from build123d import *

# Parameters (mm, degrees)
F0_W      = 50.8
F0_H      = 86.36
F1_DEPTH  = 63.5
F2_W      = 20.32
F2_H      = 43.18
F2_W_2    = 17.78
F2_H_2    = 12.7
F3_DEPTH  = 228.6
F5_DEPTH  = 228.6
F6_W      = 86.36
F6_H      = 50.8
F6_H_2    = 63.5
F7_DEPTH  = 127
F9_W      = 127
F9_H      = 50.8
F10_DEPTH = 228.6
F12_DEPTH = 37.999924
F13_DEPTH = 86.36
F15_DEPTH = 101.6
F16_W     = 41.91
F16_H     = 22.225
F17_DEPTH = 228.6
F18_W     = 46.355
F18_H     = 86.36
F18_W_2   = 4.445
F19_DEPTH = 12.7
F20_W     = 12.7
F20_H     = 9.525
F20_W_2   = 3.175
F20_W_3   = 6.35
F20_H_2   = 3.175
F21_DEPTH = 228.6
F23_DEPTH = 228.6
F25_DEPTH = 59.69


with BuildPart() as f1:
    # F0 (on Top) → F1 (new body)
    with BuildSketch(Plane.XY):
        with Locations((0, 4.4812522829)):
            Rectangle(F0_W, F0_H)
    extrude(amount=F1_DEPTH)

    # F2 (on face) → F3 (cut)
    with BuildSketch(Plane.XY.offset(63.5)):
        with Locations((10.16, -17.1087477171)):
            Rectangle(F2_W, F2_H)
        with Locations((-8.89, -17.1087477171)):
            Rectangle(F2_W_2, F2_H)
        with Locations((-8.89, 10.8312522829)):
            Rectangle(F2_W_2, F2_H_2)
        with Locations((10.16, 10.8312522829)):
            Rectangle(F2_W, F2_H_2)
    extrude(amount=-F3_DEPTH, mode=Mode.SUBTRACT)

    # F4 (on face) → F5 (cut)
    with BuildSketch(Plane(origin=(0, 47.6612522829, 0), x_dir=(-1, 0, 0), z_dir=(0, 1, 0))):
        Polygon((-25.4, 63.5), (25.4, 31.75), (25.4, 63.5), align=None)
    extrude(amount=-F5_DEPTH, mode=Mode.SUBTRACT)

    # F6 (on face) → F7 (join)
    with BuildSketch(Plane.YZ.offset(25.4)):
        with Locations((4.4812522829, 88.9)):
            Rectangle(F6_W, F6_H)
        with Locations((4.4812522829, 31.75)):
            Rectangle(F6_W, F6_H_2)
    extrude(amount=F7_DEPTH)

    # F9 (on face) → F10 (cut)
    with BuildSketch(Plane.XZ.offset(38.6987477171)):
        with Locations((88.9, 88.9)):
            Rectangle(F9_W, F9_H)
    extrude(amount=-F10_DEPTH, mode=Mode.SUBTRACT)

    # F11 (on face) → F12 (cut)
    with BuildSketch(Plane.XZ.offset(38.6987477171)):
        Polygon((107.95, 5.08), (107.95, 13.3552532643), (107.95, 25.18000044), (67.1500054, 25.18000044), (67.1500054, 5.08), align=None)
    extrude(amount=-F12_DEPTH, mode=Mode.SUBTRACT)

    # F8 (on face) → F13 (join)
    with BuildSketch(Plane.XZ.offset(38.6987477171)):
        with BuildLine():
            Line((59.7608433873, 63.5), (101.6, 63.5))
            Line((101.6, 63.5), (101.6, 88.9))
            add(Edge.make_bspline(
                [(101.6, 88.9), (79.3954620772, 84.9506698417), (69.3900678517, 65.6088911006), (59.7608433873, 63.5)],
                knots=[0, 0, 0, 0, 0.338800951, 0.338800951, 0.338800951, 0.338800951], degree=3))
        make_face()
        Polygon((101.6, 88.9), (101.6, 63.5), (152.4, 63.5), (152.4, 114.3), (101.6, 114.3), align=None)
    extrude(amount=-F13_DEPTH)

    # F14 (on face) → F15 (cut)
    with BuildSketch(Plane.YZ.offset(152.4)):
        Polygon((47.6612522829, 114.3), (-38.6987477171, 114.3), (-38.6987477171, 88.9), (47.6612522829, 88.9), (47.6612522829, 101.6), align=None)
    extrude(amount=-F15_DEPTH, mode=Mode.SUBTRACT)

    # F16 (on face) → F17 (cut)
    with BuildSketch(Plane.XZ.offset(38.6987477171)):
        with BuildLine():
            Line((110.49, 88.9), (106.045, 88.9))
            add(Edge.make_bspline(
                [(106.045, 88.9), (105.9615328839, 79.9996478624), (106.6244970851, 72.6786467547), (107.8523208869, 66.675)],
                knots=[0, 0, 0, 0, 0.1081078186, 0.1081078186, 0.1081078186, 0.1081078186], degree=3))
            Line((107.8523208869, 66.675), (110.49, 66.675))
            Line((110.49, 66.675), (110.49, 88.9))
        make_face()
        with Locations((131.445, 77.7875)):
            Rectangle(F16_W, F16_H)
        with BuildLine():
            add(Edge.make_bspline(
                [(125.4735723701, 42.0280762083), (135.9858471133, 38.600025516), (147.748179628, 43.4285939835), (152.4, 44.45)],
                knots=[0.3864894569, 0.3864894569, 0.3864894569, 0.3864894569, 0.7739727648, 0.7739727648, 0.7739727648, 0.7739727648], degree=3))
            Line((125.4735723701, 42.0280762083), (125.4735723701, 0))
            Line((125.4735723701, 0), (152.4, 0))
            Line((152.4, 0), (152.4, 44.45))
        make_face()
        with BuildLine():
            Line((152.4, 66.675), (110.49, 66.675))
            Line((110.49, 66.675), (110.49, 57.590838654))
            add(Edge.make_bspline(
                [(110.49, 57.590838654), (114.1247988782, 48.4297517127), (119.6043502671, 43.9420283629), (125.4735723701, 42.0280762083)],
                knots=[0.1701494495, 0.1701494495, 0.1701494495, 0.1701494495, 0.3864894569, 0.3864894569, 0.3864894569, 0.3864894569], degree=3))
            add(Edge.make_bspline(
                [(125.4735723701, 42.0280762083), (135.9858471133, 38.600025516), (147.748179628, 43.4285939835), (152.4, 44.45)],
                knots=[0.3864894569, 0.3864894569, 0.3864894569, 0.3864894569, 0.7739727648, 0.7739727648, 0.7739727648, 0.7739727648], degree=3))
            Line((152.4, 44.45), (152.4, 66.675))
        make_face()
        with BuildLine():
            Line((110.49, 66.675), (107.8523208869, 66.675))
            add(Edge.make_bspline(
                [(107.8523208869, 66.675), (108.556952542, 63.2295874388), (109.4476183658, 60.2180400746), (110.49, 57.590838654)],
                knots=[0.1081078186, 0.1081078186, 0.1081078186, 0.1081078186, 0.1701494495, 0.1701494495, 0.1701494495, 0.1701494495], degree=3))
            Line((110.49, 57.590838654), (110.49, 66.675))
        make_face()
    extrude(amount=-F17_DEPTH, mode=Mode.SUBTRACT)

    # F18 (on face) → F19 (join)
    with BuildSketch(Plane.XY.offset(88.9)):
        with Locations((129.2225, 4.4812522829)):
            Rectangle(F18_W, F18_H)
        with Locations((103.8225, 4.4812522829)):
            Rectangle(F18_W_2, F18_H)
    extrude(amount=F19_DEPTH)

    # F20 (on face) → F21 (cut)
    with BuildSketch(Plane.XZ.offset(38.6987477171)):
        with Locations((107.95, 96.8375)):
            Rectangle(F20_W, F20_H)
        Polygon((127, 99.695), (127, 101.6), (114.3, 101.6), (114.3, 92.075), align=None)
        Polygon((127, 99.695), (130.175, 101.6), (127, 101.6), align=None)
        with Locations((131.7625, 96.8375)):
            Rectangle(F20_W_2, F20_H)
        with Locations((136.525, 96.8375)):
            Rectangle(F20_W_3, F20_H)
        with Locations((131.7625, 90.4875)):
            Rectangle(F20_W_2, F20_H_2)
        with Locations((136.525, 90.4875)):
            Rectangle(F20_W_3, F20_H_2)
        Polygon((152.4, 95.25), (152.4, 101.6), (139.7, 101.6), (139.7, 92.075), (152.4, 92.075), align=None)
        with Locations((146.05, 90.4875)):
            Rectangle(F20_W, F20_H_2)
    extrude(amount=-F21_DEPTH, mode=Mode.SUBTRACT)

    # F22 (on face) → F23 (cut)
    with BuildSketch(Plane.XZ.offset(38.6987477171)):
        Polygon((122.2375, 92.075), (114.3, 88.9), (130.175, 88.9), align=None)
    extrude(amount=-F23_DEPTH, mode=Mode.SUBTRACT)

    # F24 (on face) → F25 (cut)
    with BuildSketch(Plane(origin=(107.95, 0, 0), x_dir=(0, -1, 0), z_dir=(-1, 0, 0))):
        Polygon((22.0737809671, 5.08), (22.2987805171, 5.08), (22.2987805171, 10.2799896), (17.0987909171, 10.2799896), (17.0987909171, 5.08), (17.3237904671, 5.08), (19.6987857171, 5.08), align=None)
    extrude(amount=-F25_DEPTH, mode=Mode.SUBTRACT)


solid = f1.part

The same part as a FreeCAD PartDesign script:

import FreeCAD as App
import Part
import Sketcher
from FreeCAD import Vector
Q = App.Units.Quantity


def add_polygon(sketch, points):
    """Adds a closed chain of lines whose ends are joined by coincident constraints."""
    first, n = sketch.GeometryCount, len(points)
    for a, b in zip(points, points[1:] + points[:1]):
        sketch.addGeometry(Part.LineSegment(App.Vector(*a, 0), App.Vector(*b, 0)), False)
    for i in range(n):
        sketch.addConstraint(Sketcher.Constraint("Coincident", first + i, 2, first + (i + 1) % n, 1))

doc = App.newDocument("Part")
body = doc.addObject("PartDesign::Body", "Body")

# Sketch on XY plane
sketch1 = doc.addObject("Sketcher::SketchObject", "Sketch")
body.addObject(sketch1)
sketch1.AttachmentSupport = (doc.XY_Plane, [""])
sketch1.MapMode = "FlatFace"
add_polygon(sketch1, [(-25, 48), (-25, -39), (25, -39), (25, 48)])  # lines 0-3
sketch1.addConstraint(Sketcher.Constraint("Vertical", 0))
sketch1.addConstraint(Sketcher.Constraint("Horizontal", 1))
sketch1.addConstraint(Sketcher.Constraint("Vertical", 2))
sketch1.addConstraint(Sketcher.Constraint("Horizontal", 3))
sketch1.addConstraint(Sketcher.Constraint("DistanceX", 1, 1, 1, 2, Q("2 in")))
sketch1.addConstraint(Sketcher.Constraint("DistanceY", 0, 2, 0, 1, Q("3.4 in")))
sketch1.addConstraint(Sketcher.Constraint("DistanceX", 0, 2, -1, 1, Q("1 in")))
sketch1.addConstraint(Sketcher.Constraint("DistanceY", 0, 2, -1, 1, Q("38.698748 mm")))
pad1 = doc.addObject("PartDesign::Pad", "Pad")
body.addObject(pad1)
pad1.Profile = sketch1
pad1.Length = Q("2.5 in")

# Sketch on XY plane
sketch2 = doc.addObject("Sketcher::SketchObject", "Sketch001")
body.addObject(sketch2)
sketch2.AttachmentSupport = (doc.XY_Plane, [""])
sketch2.MapMode = "FlatFace"
sketch2.AttachmentOffset = App.Placement(Vector(0, 0, 2.5 * 25.4), App.Rotation())
add_polygon(sketch2, [(20, -39), (20, 17), (-18, 17), (-18, -39)])  # lines 0-3
sketch2.addConstraint(Sketcher.Constraint("Vertical", 0))
sketch2.addConstraint(Sketcher.Constraint("Horizontal", 1))
sketch2.addConstraint(Sketcher.Constraint("Vertical", 2))
sketch2.addConstraint(Sketcher.Constraint("Horizontal", 3))
sketch2.addConstraint(Sketcher.Constraint("DistanceX", 1, 2, 1, 1, Q("1.5 in")))
sketch2.addConstraint(Sketcher.Constraint("DistanceY", 0, 1, 0, 2, Q("2.2 in")))
sketch2.addConstraint(Sketcher.Constraint("DistanceX", -1, 1, 0, 2, Q("0.8 in")))
sketch2.addConstraint(Sketcher.Constraint("DistanceY", -1, 1, 0, 2, Q("17.181252 mm")))
pocket1 = doc.addObject("PartDesign::Pocket", "Pocket")
body.addObject(pocket1)
pocket1.Profile = sketch2
pocket1.Length = Q("9 in")

# Sketch on XZ plane
sketch3 = doc.addObject("Sketcher::SketchObject", "Sketch002")
body.addObject(sketch3)
sketch3.AttachmentSupport = (doc.XZ_Plane, [""])
sketch3.MapMode = "FlatFace"
sketch3.AttachmentOffset = App.Placement(Vector(0, 0, -47.661252), App.Rotation())
add_polygon(sketch3, [(25, 64), (-25, 32), (-25, 64)])  # lines 0-2
sketch3.addConstraint(Sketcher.Constraint("Vertical", 1))
sketch3.addConstraint(Sketcher.Constraint("Horizontal", 2))
sketch3.addConstraint(Sketcher.Constraint("DistanceX", 2, 1, 2, 2, Q("2 in")))
sketch3.addConstraint(Sketcher.Constraint("DistanceX", 0, 2, -1, 1, Q("1 in")))
sketch3.addConstraint(Sketcher.Constraint("DistanceY", 1, 1, 1, 2, Q("1.25 in")))
sketch3.addConstraint(Sketcher.Constraint("DistanceY", -1, 1, 1, 2, Q("2.5 in")))
pocket2 = doc.addObject("PartDesign::Pocket", "Pocket001")
body.addObject(pocket2)
pocket2.Profile = sketch3
pocket2.Length = Q("9 in")
pocket2.Reversed = True

# Sketch on YZ plane
sketch4 = doc.addObject("Sketcher::SketchObject", "Sketch003")
body.addObject(sketch4)
sketch4.AttachmentSupport = (doc.YZ_Plane, [""])
sketch4.MapMode = "FlatFace"
sketch4.AttachmentOffset = App.Placement(Vector(0, 0, 1 * 25.4), App.Rotation())
add_polygon(sketch4, [(-39, 114), (-39, 0), (48, 0), (48, 114)])  # lines 0-3
sketch4.addConstraint(Sketcher.Constraint("Vertical", 0))
sketch4.addConstraint(Sketcher.Constraint("Horizontal", 1))
sketch4.addConstraint(Sketcher.Constraint("Vertical", 2))
sketch4.addConstraint(Sketcher.Constraint("Horizontal", 3))
sketch4.addConstraint(Sketcher.Constraint("PointOnObject", 0, 2, -1))
sketch4.addConstraint(Sketcher.Constraint("DistanceX", 1, 1, 1, 2, Q("3.4 in")))
sketch4.addConstraint(Sketcher.Constraint("DistanceY", 0, 2, 0, 1, Q("4.5 in")))
sketch4.addConstraint(Sketcher.Constraint("DistanceX", 0, 2, -1, 1, Q("38.698748 mm")))
pad2 = doc.addObject("PartDesign::Pad", "Pad001")
body.addObject(pad2)
pad2.Profile = sketch4
pad2.Length = Q("5 in")

# Sketch on XZ plane
sketch5 = doc.addObject("Sketcher::SketchObject", "Sketch004")
body.addObject(sketch5)
sketch5.AttachmentSupport = (doc.XZ_Plane, [""])
sketch5.MapMode = "FlatFace"
sketch5.AttachmentOffset = App.Placement(Vector(0, 0, 38.698748), App.Rotation())
add_polygon(sketch5, [(25, 114), (25, 64), (152, 64), (152, 114)])  # lines 0-3
sketch5.addConstraint(Sketcher.Constraint("Vertical", 0))
sketch5.addConstraint(Sketcher.Constraint("Horizontal", 1))
sketch5.addConstraint(Sketcher.Constraint("Vertical", 2))
sketch5.addConstraint(Sketcher.Constraint("Horizontal", 3))
sketch5.addConstraint(Sketcher.Constraint("DistanceX", 1, 1, 1, 2, Q("5 in")))
sketch5.addConstraint(Sketcher.Constraint("DistanceY", 0, 2, 0, 1, Q("2 in")))
sketch5.addConstraint(Sketcher.Constraint("DistanceX", -1, 1, 0, 2, Q("1 in")))
sketch5.addConstraint(Sketcher.Constraint("DistanceY", -1, 1, 0, 2, Q("2.5 in")))
pocket3 = doc.addObject("PartDesign::Pocket", "Pocket002")
body.addObject(pocket3)
pocket3.Profile = sketch5
pocket3.Length = Q("9 in")

# Sketch on XZ plane
sketch6 = doc.addObject("Sketcher::SketchObject", "Sketch005")
body.addObject(sketch6)
sketch6.AttachmentSupport = (doc.XZ_Plane, [""])
sketch6.MapMode = "FlatFace"
sketch6.AttachmentOffset = App.Placement(Vector(0, 0, 38.698748), App.Rotation())
add_polygon(sketch6, [(108, 5), (108, 25), (67, 25), (67, 5)])  # lines 0-3
sketch6.addConstraint(Sketcher.Constraint("Vertical", 0))
sketch6.addConstraint(Sketcher.Constraint("Horizontal", 1))
sketch6.addConstraint(Sketcher.Constraint("Vertical", 2))
sketch6.addConstraint(Sketcher.Constraint("Horizontal", 3))
sketch6.addConstraint(Sketcher.Constraint("DistanceY", -1, 1, 2, 2, Q("0.2 in")))
sketch6.addConstraint(Sketcher.Constraint("DistanceX", -1, 1, 0, 2, Q("4.25 in")))
sketch6.addConstraint(Sketcher.Constraint("DistanceY", 0, 1, 0, 2, Q("20.1 mm")))
sketch6.addConstraint(Sketcher.Constraint("DistanceX", 1, 2, 1, 1, Q("40.799995 mm")))
pocket4 = doc.addObject("PartDesign::Pocket", "Pocket003")
body.addObject(pocket4)
pocket4.Profile = sketch6
pocket4.Length = 37.999924

# Sketch on XZ plane
sketch7 = doc.addObject("Sketcher::SketchObject", "Sketch006")
body.addObject(sketch7)
sketch7.AttachmentSupport = (doc.XZ_Plane, [""])
sketch7.MapMode = "FlatFace"
sketch7.AttachmentOffset = App.Placement(Vector(0, 0, 38.698748), App.Rotation())
sketch7.addGeometry(Part.LineSegment(Vector(59.760843, 63.5, 0), Vector(152.4, 63.5, 0)), False)
sketch7.addGeometry(Part.LineSegment(Vector(152.4, 63.5, 0), Vector(152.4, 114.3, 0)), False)
sketch7.addGeometry(Part.LineSegment(Vector(152.4, 114.3, 0), Vector(101.6, 114.3, 0)), False)
sketch7.addGeometry(Part.LineSegment(Vector(101.6, 114.3, 0), Vector(101.6, 88.9, 0)), False)
sketch7.addGeometry(Part.BSplineCurve([Vector(101.6, 88.9, 0), Vector(79.395462, 84.95067, 0), Vector(69.390068, 65.608891, 0), Vector(59.760843, 63.5, 0)], [4, 4], [0, 0.338800951], False, 3, [1, 1, 1, 1], False), False)
sketch7.addConstraint(Sketcher.Constraint("Block", 4))
sketch7.addConstraint(Sketcher.Constraint("Coincident", 0, 2, 1, 1))
sketch7.addConstraint(Sketcher.Constraint("Coincident", 1, 2, 2, 1))
sketch7.addConstraint(Sketcher.Constraint("Coincident", 2, 2, 3, 1))
sketch7.addConstraint(Sketcher.Constraint("Coincident", 3, 2, 4, 1))
sketch7.addConstraint(Sketcher.Constraint("Coincident", 4, 2, 0, 1))
sketch7.addConstraint(Sketcher.Constraint("Horizontal", 0))
sketch7.addConstraint(Sketcher.Constraint("Vertical", 1))
sketch7.addConstraint(Sketcher.Constraint("Horizontal", 2))
sketch7.addConstraint(Sketcher.Constraint("Vertical", 3))
sketch7.addConstraint(Sketcher.Constraint("Equal", 2, 1))
sketch7.addConstraint(Sketcher.Constraint("DistanceX", 2, 2, 2, 1, Q("2 in")))
pad3 = doc.addObject("PartDesign::Pad", "Pad002")
body.addObject(pad3)
pad3.Profile = sketch7
pad3.Length = Q("3.4 in")
pad3.Reversed = True

# Sketch on YZ plane
sketch8 = doc.addObject("Sketcher::SketchObject", "Sketch007")
body.addObject(sketch8)
sketch8.AttachmentSupport = (doc.YZ_Plane, [""])
sketch8.MapMode = "FlatFace"
sketch8.AttachmentOffset = App.Placement(Vector(0, 0, 6 * 25.4), App.Rotation())
add_polygon(sketch8, [(48, 114), (-39, 114), (-39, 89), (48, 89)])  # lines 0-3
sketch8.addConstraint(Sketcher.Constraint("Horizontal", 0))
sketch8.addConstraint(Sketcher.Constraint("Vertical", 1))
sketch8.addConstraint(Sketcher.Constraint("Horizontal", 2))
sketch8.addConstraint(Sketcher.Constraint("Vertical", 3))
sketch8.addConstraint(Sketcher.Constraint("DistanceY", 1, 2, 1, 1, Q("1 in")))
sketch8.addConstraint(Sketcher.Constraint("DistanceX", 0, 2, 0, 1, Q("3.4 in")))
sketch8.addConstraint(Sketcher.Constraint("DistanceY", -1, 1, 0, 2, Q("4.5 in")))
sketch8.addConstraint(Sketcher.Constraint("DistanceX", 0, 2, -1, 1, Q("38.698748 mm")))
pocket5 = doc.addObject("PartDesign::Pocket", "Pocket004")
body.addObject(pocket5)
pocket5.Profile = sketch8
pocket5.Length = Q("4 in")

# Sketch on XZ plane
sketch9 = doc.addObject("Sketcher::SketchObject", "Sketch008")
body.addObject(sketch9)
sketch9.AttachmentSupport = (doc.XZ_Plane, [""])
sketch9.MapMode = "FlatFace"
sketch9.AttachmentOffset = App.Placement(Vector(0, 0, 38.698748), App.Rotation())
sketch9.addGeometry(Part.BSplineCurve([Vector(106.045, 88.9, 0), Vector(105.961533, 79.999648, 0), Vector(106.624497, 72.678647, 0), Vector(107.852321, 66.675, 0)], [4, 4], [0, 0.108107819], False, 3, [1, 1, 1, 1], False), False)
sketch9.addGeometry(Part.BSplineCurve([Vector(107.852321, 66.675, 0), Vector(108.556953, 63.229587, 0), Vector(109.447618, 60.21804, 0), Vector(110.49, 57.590839, 0)], [4, 4], [0.108107819, 0.170149449], False, 3, [1, 1, 1, 1], False), False)
sketch9.addGeometry(Part.BSplineCurve([Vector(110.49, 57.590839, 0), Vector(114.124799, 48.429752, 0), Vector(119.60435, 43.942028, 0), Vector(125.473572, 42.028076, 0)], [4, 4], [0.170149449, 0.386489457], False, 3, [1, 1, 1, 1], False), False)
sketch9.addGeometry(Part.LineSegment(Vector(125.473572, 42.028076, 0), Vector(125.473572, 0, 0)), False)
sketch9.addGeometry(Part.LineSegment(Vector(125.473572, 0, 0), Vector(152.4, 0, 0)), False)
sketch9.addGeometry(Part.LineSegment(Vector(152.4, 0, 0), Vector(152.4, 88.9, 0)), False)
sketch9.addGeometry(Part.LineSegment(Vector(152.4, 88.9, 0), Vector(106.045, 88.9, 0)), False)
sketch9.addConstraint(Sketcher.Constraint("Block", 0))
sketch9.addConstraint(Sketcher.Constraint("Block", 1))
sketch9.addConstraint(Sketcher.Constraint("Block", 2))
sketch9.addConstraint(Sketcher.Constraint("Coincident", 2, 2, 3, 1))
sketch9.addConstraint(Sketcher.Constraint("Coincident", 3, 2, 4, 1))
sketch9.addConstraint(Sketcher.Constraint("Coincident", 4, 2, 5, 1))
sketch9.addConstraint(Sketcher.Constraint("Coincident", 5, 2, 6, 1))
sketch9.addConstraint(Sketcher.Constraint("Coincident", 6, 2, 0, 1))
sketch9.addConstraint(Sketcher.Constraint("Vertical", 3))
sketch9.addConstraint(Sketcher.Constraint("Horizontal", 4))
sketch9.addConstraint(Sketcher.Constraint("Vertical", 5))
sketch9.addConstraint(Sketcher.Constraint("Horizontal", 6))
sketch9.addConstraint(Sketcher.Constraint("PointOnObject", 3, 2, -1))
sketch9.addConstraint(Sketcher.Constraint("DistanceX", -1, 1, 4, 2, Q("6 in")))
pocket6 = doc.addObject("PartDesign::Pocket", "Pocket005")
body.addObject(pocket6)
pocket6.Profile = sketch9
pocket6.Length = Q("9 in")

# Sketch on XY plane
sketch10 = doc.addObject("Sketcher::SketchObject", "Sketch009")
body.addObject(sketch10)
sketch10.AttachmentSupport = (doc.XY_Plane, [""])
sketch10.MapMode = "FlatFace"
sketch10.AttachmentOffset = App.Placement(Vector(0, 0, 3.5 * 25.4), App.Rotation())
add_polygon(sketch10, [(152, -39), (152, 48), (102, 48), (102, -39)])  # lines 0-3
sketch10.addConstraint(Sketcher.Constraint("Vertical", 0))
sketch10.addConstraint(Sketcher.Constraint("Horizontal", 1))
sketch10.addConstraint(Sketcher.Constraint("Vertical", 2))
sketch10.addConstraint(Sketcher.Constraint("Horizontal", 3))
sketch10.addConstraint(Sketcher.Constraint("DistanceX", 1, 2, 1, 1, Q("2 in")))
sketch10.addConstraint(Sketcher.Constraint("DistanceY", 0, 1, 0, 2, Q("3.4 in")))
sketch10.addConstraint(Sketcher.Constraint("DistanceX", -1, 1, 0, 2, Q("6 in")))
sketch10.addConstraint(Sketcher.Constraint("DistanceY", -1, 1, 0, 2, Q("47.661252 mm")))
pad4 = doc.addObject("PartDesign::Pad", "Pad003")
body.addObject(pad4)
pad4.Profile = sketch10
pad4.Length = Q("0.5 in")

# Sketch on XZ plane
sketch11 = doc.addObject("Sketcher::SketchObject", "Sketch010")
body.addObject(sketch11)
sketch11.AttachmentSupport = (doc.XZ_Plane, [""])
sketch11.MapMode = "FlatFace"
sketch11.AttachmentOffset = App.Placement(Vector(0, 0, 38.698748), App.Rotation())
add_polygon(sketch11, [(102, 102), (102, 92), (114, 92), (130, 102)])  # lines 0-3
add_polygon(sketch11, [(130, 102), (130, 89), (152, 89), (152, 102)])  # lines 4-7
sketch11.addConstraint(Sketcher.Constraint("Vertical", 0))
sketch11.addConstraint(Sketcher.Constraint("Horizontal", 1))
sketch11.addConstraint(Sketcher.Constraint("Horizontal", 3))
sketch11.addConstraint(Sketcher.Constraint("Vertical", 4))
sketch11.addConstraint(Sketcher.Constraint("Horizontal", 5))
sketch11.addConstraint(Sketcher.Constraint("Vertical", 6))
sketch11.addConstraint(Sketcher.Constraint("Horizontal", 7))
sketch11.addConstraint(Sketcher.Constraint("Coincident", 7, 2, 2, 2))
sketch11.addConstraint(Sketcher.Constraint("Equal", 1, 4))
sketch11.addConstraint(Sketcher.Constraint("DistanceX", 1, 1, 1, 2, Q("0.5 in")))
sketch11.addConstraint(Sketcher.Constraint("DistanceX", -1, 1, 0, 2, Q("4 in")))
sketch11.addConstraint(Sketcher.Constraint("DistanceY", -1, 1, 2, 2, Q("4 in")))
sketch11.addConstraint(Sketcher.Constraint("DistanceX", -1, 1, 5, 2, Q("6 in")))
sketch11.addConstraint(Sketcher.Constraint("DistanceX", 3, 2, 3, 1, Q("1.125 in")))
sketch11.addConstraint(Sketcher.Constraint("DistanceY", 0, 2, 0, 1, Q("0.375 in")))
pocket7 = doc.addObject("PartDesign::Pocket", "Pocket006")
body.addObject(pocket7)
pocket7.Profile = sketch11
pocket7.Length = Q("9 in")

# Sketch on XZ plane
sketch12 = doc.addObject("Sketcher::SketchObject", "Sketch011")
body.addObject(sketch12)
sketch12.AttachmentSupport = (doc.XZ_Plane, [""])
sketch12.MapMode = "FlatFace"
sketch12.AttachmentOffset = App.Placement(Vector(0, 0, 38.698748), App.Rotation())
add_polygon(sketch12, [(122, 92), (114, 89), (130, 89)])  # lines 0-2
sketch12.addConstraint(Sketcher.Constraint("Horizontal", 1))
sketch12.addConstraint(Sketcher.Constraint("Equal", 0, 2))
sketch12.addConstraint(Sketcher.Constraint("DistanceX", -1, 1, 0, 2, Q("4.5 in")))
sketch12.addConstraint(Sketcher.Constraint("DistanceY", -1, 1, 0, 2, Q("3.5 in")))
sketch12.addConstraint(Sketcher.Constraint("DistanceX", 1, 1, 1, 2, Q("0.625 in")))
sketch12.addConstraint(Sketcher.Constraint("DistanceY", -1, 1, 2, 2, Q("3.625 in")))
pocket8 = doc.addObject("PartDesign::Pocket", "Pocket007")
body.addObject(pocket8)
pocket8.Profile = sketch12
pocket8.Length = Q("9 in")

# Sketch on YZ plane
sketch13 = doc.addObject("Sketcher::SketchObject", "Sketch012")
body.addObject(sketch13)
sketch13.AttachmentSupport = (doc.YZ_Plane, [""])
sketch13.MapMode = "FlatFace"
sketch13.AttachmentOffset = App.Placement(Vector(0, 0, 4.25 * 25.4), App.Rotation())
add_polygon(sketch13, [(-22, 5), (-22, 10), (-17, 10), (-17, 5)])  # lines 0-3
sketch13.addConstraint(Sketcher.Constraint("Vertical", 0))
sketch13.addConstraint(Sketcher.Constraint("Horizontal", 1))
sketch13.addConstraint(Sketcher.Constraint("Vertical", 2))
sketch13.addConstraint(Sketcher.Constraint("Horizontal", 3))
sketch13.addConstraint(Sketcher.Constraint("Equal", 3, 0))
sketch13.addConstraint(Sketcher.Constraint("DistanceY", -1, 1, 2, 2, Q("0.2 in")))
sketch13.addConstraint(Sketcher.Constraint("DistanceX", 1, 1, 1, 2, Q("5.19999 mm")))
sketch13.addConstraint(Sketcher.Constraint("DistanceX", 0, 2, -1, 1, Q("22.298781 mm")))
pocket9 = doc.addObject("PartDesign::Pocket", "Pocket008")
body.addObject(pocket9)
pocket9.Profile = sketch13
pocket9.Length = Q("2.35 in")
pocket9.Reversed = True

doc.recompute()
